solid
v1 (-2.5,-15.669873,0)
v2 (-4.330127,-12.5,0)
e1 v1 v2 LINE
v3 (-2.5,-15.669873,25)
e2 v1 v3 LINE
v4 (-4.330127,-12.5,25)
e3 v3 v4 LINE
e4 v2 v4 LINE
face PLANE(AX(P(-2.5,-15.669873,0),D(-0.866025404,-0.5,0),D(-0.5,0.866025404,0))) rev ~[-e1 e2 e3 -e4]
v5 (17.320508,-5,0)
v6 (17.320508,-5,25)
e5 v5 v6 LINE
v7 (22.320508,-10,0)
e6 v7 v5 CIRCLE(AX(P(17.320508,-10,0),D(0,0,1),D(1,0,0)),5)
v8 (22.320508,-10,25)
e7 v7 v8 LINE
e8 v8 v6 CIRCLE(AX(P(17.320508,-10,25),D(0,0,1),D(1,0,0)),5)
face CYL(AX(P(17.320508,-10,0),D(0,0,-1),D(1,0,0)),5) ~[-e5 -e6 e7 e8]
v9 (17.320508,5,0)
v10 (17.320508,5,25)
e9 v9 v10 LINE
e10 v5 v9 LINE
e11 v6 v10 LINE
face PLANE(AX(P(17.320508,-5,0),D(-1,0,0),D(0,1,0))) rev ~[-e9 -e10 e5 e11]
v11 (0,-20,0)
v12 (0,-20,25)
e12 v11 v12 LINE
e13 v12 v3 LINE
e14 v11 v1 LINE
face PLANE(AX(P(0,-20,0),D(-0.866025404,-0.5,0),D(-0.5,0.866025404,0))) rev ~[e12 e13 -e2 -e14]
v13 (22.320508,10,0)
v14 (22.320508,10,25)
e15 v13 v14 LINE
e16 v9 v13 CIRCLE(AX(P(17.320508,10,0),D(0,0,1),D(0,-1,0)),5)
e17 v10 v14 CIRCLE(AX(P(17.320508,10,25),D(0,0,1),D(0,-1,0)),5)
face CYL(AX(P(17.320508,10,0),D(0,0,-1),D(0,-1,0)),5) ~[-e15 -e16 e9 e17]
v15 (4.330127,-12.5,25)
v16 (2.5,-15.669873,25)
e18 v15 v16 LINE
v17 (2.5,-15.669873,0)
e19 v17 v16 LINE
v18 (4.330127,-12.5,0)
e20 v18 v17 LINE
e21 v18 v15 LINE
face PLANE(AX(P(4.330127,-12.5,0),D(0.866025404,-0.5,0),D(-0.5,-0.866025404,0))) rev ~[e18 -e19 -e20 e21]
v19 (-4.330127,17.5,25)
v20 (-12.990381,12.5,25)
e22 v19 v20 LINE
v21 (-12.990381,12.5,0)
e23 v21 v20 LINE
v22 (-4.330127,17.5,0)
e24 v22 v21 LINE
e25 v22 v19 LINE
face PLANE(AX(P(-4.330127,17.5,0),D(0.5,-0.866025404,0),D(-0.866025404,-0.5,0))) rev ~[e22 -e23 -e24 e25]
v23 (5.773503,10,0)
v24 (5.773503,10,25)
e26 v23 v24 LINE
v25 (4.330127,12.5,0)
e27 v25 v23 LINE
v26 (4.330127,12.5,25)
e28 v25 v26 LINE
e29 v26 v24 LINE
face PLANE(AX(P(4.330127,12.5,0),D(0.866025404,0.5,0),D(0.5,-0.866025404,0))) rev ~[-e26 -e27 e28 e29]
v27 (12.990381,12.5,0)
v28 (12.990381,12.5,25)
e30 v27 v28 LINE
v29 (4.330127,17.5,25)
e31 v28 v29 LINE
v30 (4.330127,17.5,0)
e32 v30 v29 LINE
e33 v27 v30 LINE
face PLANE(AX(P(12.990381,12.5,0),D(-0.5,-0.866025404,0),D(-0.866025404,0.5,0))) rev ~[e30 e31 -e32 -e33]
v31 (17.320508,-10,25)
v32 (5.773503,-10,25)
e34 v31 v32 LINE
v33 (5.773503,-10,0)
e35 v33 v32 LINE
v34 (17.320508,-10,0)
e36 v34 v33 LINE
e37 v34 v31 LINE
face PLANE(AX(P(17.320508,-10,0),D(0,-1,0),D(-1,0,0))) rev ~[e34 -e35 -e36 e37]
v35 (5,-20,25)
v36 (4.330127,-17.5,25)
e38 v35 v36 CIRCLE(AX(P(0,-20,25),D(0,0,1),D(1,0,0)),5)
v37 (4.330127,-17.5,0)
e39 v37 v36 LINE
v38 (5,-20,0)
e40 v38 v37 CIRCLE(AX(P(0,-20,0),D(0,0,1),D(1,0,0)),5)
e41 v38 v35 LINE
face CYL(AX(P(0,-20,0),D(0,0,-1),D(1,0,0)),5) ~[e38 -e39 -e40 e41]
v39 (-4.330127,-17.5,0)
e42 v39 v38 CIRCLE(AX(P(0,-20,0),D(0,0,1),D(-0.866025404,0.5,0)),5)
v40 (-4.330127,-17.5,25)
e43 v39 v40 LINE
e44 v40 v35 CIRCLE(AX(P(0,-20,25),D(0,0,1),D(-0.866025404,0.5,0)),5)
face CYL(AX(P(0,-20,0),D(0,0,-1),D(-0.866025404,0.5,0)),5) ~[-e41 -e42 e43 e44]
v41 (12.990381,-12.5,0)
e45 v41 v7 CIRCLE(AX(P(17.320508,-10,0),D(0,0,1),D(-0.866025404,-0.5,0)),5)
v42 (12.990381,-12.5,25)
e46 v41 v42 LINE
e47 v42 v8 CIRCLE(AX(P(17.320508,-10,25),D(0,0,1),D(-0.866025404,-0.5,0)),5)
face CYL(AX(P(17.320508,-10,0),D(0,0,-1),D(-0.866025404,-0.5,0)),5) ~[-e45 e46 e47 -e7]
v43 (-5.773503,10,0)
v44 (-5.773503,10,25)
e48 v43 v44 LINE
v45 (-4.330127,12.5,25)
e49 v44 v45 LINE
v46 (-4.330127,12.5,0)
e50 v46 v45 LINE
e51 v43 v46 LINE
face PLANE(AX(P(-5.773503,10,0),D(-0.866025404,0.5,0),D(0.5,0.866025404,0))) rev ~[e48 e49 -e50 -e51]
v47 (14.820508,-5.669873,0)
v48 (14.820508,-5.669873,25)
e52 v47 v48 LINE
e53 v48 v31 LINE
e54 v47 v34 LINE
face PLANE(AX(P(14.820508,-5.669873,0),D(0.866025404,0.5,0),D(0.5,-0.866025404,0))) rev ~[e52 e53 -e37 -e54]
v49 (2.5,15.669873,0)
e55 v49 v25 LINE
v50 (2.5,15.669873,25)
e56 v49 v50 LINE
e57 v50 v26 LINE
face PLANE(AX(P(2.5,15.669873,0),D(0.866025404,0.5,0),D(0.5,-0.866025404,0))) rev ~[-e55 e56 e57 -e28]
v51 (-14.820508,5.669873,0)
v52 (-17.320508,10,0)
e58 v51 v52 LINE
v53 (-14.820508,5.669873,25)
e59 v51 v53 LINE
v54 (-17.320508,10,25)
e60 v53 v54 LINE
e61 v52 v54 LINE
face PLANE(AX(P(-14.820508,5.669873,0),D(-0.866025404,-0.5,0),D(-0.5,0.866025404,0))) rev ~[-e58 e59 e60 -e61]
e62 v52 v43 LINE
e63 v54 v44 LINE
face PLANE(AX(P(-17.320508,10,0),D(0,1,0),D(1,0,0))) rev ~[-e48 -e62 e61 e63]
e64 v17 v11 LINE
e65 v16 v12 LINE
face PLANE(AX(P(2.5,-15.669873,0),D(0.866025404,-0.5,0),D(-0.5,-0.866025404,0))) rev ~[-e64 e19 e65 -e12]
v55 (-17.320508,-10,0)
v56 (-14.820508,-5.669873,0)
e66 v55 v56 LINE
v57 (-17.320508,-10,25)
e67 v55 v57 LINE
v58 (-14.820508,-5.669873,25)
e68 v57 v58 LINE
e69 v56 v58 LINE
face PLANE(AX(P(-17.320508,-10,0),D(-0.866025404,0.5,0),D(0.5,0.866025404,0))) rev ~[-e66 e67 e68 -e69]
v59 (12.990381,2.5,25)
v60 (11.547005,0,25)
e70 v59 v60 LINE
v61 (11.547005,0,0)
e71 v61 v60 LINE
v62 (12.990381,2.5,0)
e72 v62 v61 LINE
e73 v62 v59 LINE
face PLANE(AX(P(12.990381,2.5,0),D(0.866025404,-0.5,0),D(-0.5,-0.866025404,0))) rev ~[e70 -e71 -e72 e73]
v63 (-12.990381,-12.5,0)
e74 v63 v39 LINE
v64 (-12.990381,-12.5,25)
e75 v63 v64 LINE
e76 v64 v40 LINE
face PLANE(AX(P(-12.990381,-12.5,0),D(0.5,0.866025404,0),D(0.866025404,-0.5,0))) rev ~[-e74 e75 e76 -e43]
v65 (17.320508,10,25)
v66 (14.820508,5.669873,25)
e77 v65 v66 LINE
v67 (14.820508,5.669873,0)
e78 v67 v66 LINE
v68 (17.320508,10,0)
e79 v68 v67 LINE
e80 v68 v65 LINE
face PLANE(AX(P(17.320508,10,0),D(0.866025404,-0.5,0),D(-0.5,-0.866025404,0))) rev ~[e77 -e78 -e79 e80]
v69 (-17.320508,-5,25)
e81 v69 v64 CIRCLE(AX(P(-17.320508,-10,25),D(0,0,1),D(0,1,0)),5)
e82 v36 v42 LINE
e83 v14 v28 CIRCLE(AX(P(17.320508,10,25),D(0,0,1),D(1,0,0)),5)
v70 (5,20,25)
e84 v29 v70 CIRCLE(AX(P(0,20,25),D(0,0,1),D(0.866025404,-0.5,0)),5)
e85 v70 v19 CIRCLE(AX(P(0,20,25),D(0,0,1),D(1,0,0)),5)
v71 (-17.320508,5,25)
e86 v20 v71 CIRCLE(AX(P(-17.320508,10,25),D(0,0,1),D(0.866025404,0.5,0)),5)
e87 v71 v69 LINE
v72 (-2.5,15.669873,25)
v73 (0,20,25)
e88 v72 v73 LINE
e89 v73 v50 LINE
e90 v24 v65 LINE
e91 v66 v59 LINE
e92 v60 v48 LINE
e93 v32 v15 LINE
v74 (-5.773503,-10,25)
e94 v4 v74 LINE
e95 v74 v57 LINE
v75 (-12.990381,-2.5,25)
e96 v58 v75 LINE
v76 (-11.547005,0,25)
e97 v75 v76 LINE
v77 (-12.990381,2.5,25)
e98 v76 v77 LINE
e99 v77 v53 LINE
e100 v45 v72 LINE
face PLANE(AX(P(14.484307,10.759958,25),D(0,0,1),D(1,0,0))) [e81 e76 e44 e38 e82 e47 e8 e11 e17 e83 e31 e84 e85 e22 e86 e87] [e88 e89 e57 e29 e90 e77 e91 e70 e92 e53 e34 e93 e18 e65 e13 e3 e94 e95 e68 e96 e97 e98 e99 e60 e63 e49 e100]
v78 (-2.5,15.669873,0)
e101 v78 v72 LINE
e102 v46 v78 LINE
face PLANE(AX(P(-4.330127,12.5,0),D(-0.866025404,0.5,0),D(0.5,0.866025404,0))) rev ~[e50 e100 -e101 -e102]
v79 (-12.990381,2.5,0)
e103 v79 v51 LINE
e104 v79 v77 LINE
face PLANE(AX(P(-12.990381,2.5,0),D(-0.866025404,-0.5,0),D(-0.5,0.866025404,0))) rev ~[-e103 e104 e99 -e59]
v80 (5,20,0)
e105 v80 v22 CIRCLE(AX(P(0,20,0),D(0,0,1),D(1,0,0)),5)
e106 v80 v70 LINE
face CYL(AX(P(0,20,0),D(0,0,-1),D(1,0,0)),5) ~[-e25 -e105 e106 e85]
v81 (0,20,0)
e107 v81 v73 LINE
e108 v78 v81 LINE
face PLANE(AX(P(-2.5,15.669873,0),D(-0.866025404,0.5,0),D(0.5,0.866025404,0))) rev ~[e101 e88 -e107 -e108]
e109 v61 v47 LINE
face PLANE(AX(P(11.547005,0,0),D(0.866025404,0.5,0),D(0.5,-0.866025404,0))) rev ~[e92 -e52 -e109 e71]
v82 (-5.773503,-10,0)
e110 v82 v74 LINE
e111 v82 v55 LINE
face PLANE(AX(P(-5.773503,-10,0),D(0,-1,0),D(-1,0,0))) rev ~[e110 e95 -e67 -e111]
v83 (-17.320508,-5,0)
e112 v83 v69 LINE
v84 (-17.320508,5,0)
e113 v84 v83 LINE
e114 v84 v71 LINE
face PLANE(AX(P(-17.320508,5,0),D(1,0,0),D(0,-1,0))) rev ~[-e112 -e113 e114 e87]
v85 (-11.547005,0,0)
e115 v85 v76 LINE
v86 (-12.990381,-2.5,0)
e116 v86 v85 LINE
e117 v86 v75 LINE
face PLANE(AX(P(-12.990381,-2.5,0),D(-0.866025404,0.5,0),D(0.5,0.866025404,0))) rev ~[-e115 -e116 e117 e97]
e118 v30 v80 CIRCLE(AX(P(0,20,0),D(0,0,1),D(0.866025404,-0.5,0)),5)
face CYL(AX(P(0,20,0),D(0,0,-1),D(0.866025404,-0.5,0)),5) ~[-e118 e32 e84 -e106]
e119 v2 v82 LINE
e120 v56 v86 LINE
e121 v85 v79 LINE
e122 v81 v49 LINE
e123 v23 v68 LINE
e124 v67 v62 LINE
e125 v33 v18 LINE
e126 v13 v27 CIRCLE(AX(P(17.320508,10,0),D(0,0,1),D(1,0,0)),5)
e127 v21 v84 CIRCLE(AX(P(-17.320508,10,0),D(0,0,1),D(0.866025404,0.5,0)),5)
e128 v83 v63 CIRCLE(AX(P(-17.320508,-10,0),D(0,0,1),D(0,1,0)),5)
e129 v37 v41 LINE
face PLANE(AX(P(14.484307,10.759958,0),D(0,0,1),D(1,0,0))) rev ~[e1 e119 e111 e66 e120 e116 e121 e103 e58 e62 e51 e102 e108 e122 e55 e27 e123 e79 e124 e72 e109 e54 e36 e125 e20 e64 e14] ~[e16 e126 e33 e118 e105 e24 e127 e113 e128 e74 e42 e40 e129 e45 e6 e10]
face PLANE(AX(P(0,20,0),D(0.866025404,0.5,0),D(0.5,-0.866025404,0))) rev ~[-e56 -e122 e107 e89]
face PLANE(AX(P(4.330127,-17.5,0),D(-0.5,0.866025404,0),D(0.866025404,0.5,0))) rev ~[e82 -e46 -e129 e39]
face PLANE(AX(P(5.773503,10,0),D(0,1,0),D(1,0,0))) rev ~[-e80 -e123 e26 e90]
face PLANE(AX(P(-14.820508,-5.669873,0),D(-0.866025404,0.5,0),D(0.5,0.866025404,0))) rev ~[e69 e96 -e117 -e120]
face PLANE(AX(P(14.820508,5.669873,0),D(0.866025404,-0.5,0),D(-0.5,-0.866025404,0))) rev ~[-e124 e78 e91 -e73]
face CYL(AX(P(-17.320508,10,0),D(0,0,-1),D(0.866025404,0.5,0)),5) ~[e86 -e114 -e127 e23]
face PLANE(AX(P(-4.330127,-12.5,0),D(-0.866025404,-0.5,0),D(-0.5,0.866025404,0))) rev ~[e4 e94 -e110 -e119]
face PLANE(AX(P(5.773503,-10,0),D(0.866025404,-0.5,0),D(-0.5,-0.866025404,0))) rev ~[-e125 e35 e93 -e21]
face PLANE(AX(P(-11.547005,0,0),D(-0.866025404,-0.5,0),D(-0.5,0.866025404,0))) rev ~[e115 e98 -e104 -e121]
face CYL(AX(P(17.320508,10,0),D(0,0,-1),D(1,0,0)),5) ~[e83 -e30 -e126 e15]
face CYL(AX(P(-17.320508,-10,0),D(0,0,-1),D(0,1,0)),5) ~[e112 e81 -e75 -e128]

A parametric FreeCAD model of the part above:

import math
import FreeCAD as App
import Part
import Sketcher

V = App.Vector

doc = App.newDocument("Part")
body = doc.addObject("PartDesign::Body", "Body")

# Sketch on XY plane
sketch1 = body.newObject("Sketcher::SketchObject", "Sketch")
sketch1.AttachmentSupport = (doc.getObject("XY_Plane"), [""])
sketch1.MapMode = "FlatFace"
sketch1.addGeometry(Part.ArcOfCircle(Part.Circle(V(-17.320508, -10, 0), V(0, 0, 1), 5), math.radians(90), math.radians(330)), False)
sketch1.addGeometry(Part.LineSegment(V(-12.990381, -12.5, 0), V(-4.330127, -17.5, 0)), False)
sketch1.addGeometry(Part.ArcOfCircle(Part.Circle(V(0, -20, 0), V(0, 0, 1), 5), math.radians(150), math.radians(360)), False)
sketch1.addGeometry(Part.ArcOfCircle(Part.Circle(V(0, -20, 0), V(0, 0, 1), 5), math.radians(0), math.radians(30)), False)
sketch1.addGeometry(Part.LineSegment(V(4.330127, -17.5, 0), V(12.990381, -12.5, 0)), False)
sketch1.addGeometry(Part.ArcOfCircle(Part.Circle(V(17.320508, -10, 0), V(0, 0, 1), 5), math.radians(-150), math.radians(0)), False)
sketch1.addGeometry(Part.ArcOfCircle(Part.Circle(V(17.320508, -10, 0), V(0, 0, 1), 5), math.radians(0), math.radians(90)), False)
sketch1.addGeometry(Part.LineSegment(V(17.320508, -5, 0), V(17.320508, 5, 0)), False)
sketch1.addGeometry(Part.ArcOfCircle(Part.Circle(V(17.320508, 10, 0), V(0, 0, 1), 5), math.radians(-90), math.radians(0)), False)
sketch1.addGeometry(Part.ArcOfCircle(Part.Circle(V(17.320508, 10, 0), V(0, 0, 1), 5), math.radians(0), math.radians(150)), False)
sketch1.addGeometry(Part.LineSegment(V(12.990381, 12.5, 0), V(4.330127, 17.5, 0)), False)
sketch1.addGeometry(Part.ArcOfCircle(Part.Circle(V(0, 20, 0), V(0, 0, 1), 5), math.radians(-30), math.radians(0)), False)
sketch1.addGeometry(Part.ArcOfCircle(Part.Circle(V(0, 20, 0), V(0, 0, 1), 5), math.radians(0), math.radians(210)), False)
sketch1.addGeometry(Part.LineSegment(V(-4.330127, 17.5, 0), V(-12.990381, 12.5, 0)), False)
sketch1.addGeometry(Part.ArcOfCircle(Part.Circle(V(-17.320508, 10, 0), V(0, 0, 1), 5), math.radians(30), math.radians(270)), False)
sketch1.addGeometry(Part.LineSegment(V(-17.320508, 5, 0), V(-17.320508, -5, 0)), False)
sketch1.addGeometry(Part.LineSegment(V(17.320508, 10, 0), V(14.820508, 5.669873, 0)), False)
sketch1.addGeometry(Part.LineSegment(V(14.820508, 5.669873, 0), V(12.990381, 2.5, 0)), False)
sketch1.addGeometry(Part.LineSegment(V(12.990381, 2.5, 0), V(11.547005, 0, 0)), False)
sketch1.addGeometry(Part.LineSegment(V(11.547005, 0, 0), V(14.820508, -5.669873, 0)), False)
sketch1.addGeometry(Part.LineSegment(V(14.820508, -5.669873, 0), V(17.320508, -10, 0)), False)
sketch1.addGeometry(Part.LineSegment(V(17.320508, -10, 0), V(5.773503, -10, 0)), False)
sketch1.addGeometry(Part.LineSegment(V(5.773503, -10, 0), V(4.330127, -12.5, 0)), False)
sketch1.addGeometry(Part.LineSegment(V(4.330127, -12.5, 0), V(2.5, -15.669873, 0)), False)
sketch1.addGeometry(Part.LineSegment(V(2.5, -15.669873, 0), V(0, -20, 0)), False)
sketch1.addGeometry(Part.LineSegment(V(0, -20, 0), V(-2.5, -15.669873, 0)), False)
sketch1.addGeometry(Part.LineSegment(V(-2.5, -15.669873, 0), V(-4.330127, -12.5, 0)), False)
sketch1.addGeometry(Part.LineSegment(V(-4.330127, -12.5, 0), V(-5.773503, -10, 0)), False)
sketch1.addGeometry(Part.LineSegment(V(-5.773503, -10, 0), V(-17.320508, -10, 0)), False)
sketch1.addGeometry(Part.LineSegment(V(-17.320508, -10, 0), V(-14.820508, -5.669873, 0)), False)
sketch1.addGeometry(Part.LineSegment(V(-14.820508, -5.669873, 0), V(-12.990381, -2.5, 0)), False)
sketch1.addGeometry(Part.LineSegment(V(-12.990381, -2.5, 0), V(-11.547005, 0, 0)), False)
sketch1.addGeometry(Part.LineSegment(V(-11.547005, 0, 0), V(-12.990381, 2.5, 0)), False)
sketch1.addGeometry(Part.LineSegment(V(-12.990381, 2.5, 0), V(-14.820508, 5.669873, 0)), False)
sketch1.addGeometry(Part.LineSegment(V(-14.820508, 5.669873, 0), V(-17.320508, 10, 0)), False)
sketch1.addGeometry(Part.LineSegment(V(-17.320508, 10, 0), V(-5.773503, 10, 0)), False)
sketch1.addGeometry(Part.LineSegment(V(-5.773503, 10, 0), V(-4.330127, 12.5, 0)), False)
sketch1.addGeometry(Part.LineSegment(V(-4.330127, 12.5, 0), V(-2.5, 15.669873, 0)), False)
sketch1.addGeometry(Part.LineSegment(V(-2.5, 15.669873, 0), V(0, 20, 0)), False)
sketch1.addGeometry(Part.LineSegment(V(0, 20, 0), V(2.5, 15.669873, 0)), False)
sketch1.addGeometry(Part.LineSegment(V(2.5, 15.669873, 0), V(4.330127, 12.5, 0)), False)
sketch1.addGeometry(Part.LineSegment(V(4.330127, 12.5, 0), V(5.773503, 10, 0)), False)
sketch1.addGeometry(Part.LineSegment(V(5.773503, 10, 0), V(17.320508, 10, 0)), False)
sketch1.addConstraint(Sketcher.Constraint("Coincident", 0, 2, 1, 1))
sketch1.addConstraint(Sketcher.Constraint("Coincident", 1, 2, 2, 1))
sketch1.addConstraint(Sketcher.Constraint("Tangent", 2, 2, 3, 1))
sketch1.addConstraint(Sketcher.Constraint("Coincident", 3, 2, 4, 1))
sketch1.addConstraint(Sketcher.Constraint("Coincident", 4, 2, 5, 1))
sketch1.addConstraint(Sketcher.Constraint("Tangent", 5, 2, 6, 1))
sketch1.addConstraint(Sketcher.Constraint("Coincident", 6, 2, 7, 1))
sketch1.addConstraint(Sketcher.Constraint("Coincident", 7, 2, 8, 1))
sketch1.addConstraint(Sketcher.Constraint("Tangent", 8, 2, 9, 1))
sketch1.addConstraint(Sketcher.Constraint("Coincident", 9, 2, 10, 1))
sketch1.addConstraint(Sketcher.Constraint("Coincident", 10, 2, 11, 1))
sketch1.addConstraint(Sketcher.Constraint("Tangent", 11, 2, 12, 1))
sketch1.addConstraint(Sketcher.Constraint("Coincident", 12, 2, 13, 1))
sketch1.addConstraint(Sketcher.Constraint("Coincident", 13, 2, 14, 1))
sketch1.addConstraint(Sketcher.Constraint("Coincident", 14, 2, 15, 1))
sketch1.addConstraint(Sketcher.Constraint("Coincident", 15, 2, 0, 1))
sketch1.addConstraint(Sketcher.Constraint("Coincident", 16, 2, 17, 1))
sketch1.addConstraint(Sketcher.Constraint("Coincident", 17, 2, 18, 1))
sketch1.addConstraint(Sketcher.Constraint("Coincident", 18, 2, 19, 1))
sketch1.addConstraint(Sketcher.Constraint("Coincident", 19, 2, 20, 1))
sketch1.addConstraint(Sketcher.Constraint("Coincident", 20, 2, 21, 1))
sketch1.addConstraint(Sketcher.Constraint("Coincident", 21, 2, 22, 1))
sketch1.addConstraint(Sketcher.Constraint("Coincident", 22, 2, 23, 1))
sketch1.addConstraint(Sketcher.Constraint("Coincident", 23, 2, 24, 1))
sketch1.addConstraint(Sketcher.Constraint("Coincident", 24, 2, 25, 1))
sketch1.addConstraint(Sketcher.Constraint("Coincident", 25, 2, 26, 1))
sketch1.addConstraint(Sketcher.Constraint("Coincident", 26, 2, 27, 1))
sketch1.addConstraint(Sketcher.Constraint("Coincident", 27, 2, 28, 1))
sketch1.addConstraint(Sketcher.Constraint("Coincident", 28, 2, 29, 1))
sketch1.addConstraint(Sketcher.Constraint("Coincident", 29, 2, 30, 1))
sketch1.addConstraint(Sketcher.Constraint("Coincident", 30, 2, 31, 1))
sketch1.addConstraint(Sketcher.Constraint("Coincident", 31, 2, 32, 1))
sketch1.addConstraint(Sketcher.Constraint("Coincident", 32, 2, 33, 1))
sketch1.addConstraint(Sketcher.Constraint("Coincident", 33, 2, 34, 1))
sketch1.addConstraint(Sketcher.Constraint("Coincident", 34, 2, 35, 1))
sketch1.addConstraint(Sketcher.Constraint("Coincident", 35, 2, 36, 1))
sketch1.addConstraint(Sketcher.Constraint("Coincident", 36, 2, 37, 1))
sketch1.addConstraint(Sketcher.Constraint("Coincident", 37, 2, 38, 1))
sketch1.addConstraint(Sketcher.Constraint("Coincident", 38, 2, 39, 1))
sketch1.addConstraint(Sketcher.Constraint("Coincident", 39, 2, 40, 1))
sketch1.addConstraint(Sketcher.Constraint("Coincident", 40, 2, 41, 1))
sketch1.addConstraint(Sketcher.Constraint("Coincident", 41, 2, 42, 1))
sketch1.addConstraint(Sketcher.Constraint("Coincident", 42, 2, 16, 1))
sketch1.addConstraint(Sketcher.Constraint("Vertical", 7))
sketch1.addConstraint(Sketcher.Constraint("Vertical", 15))
sketch1.addConstraint(Sketcher.Constraint("Horizontal", 21))
sketch1.addConstraint(Sketcher.Constraint("Horizontal", 28))
sketch1.addConstraint(Sketcher.Constraint("Horizontal", 35))
sketch1.addConstraint(Sketcher.Constraint("Horizontal", 42))
sketch1.addConstraint(Sketcher.Constraint("Coincident", 20, 2, 5, 3))
sketch1.addConstraint(Sketcher.Constraint("Coincident", 24, 2, 2, 3))
sketch1.addConstraint(Sketcher.Constraint("Coincident", 28, 2, 0, 3))
sketch1.addConstraint(Sketcher.Constraint("Coincident", 34, 2, 14, 3))
sketch1.addConstraint(Sketcher.Constraint("Coincident", 38, 2, 11, 3))
sketch1.addConstraint(Sketcher.Constraint("Coincident", 42, 2, 8, 3))
sketch1.addConstraint(Sketcher.Constraint("Equal", 0, 2))
sketch1.addConstraint(Sketcher.Constraint("Equal", 2, 3))
sketch1.addConstraint(Sketcher.Constraint("Equal", 3, 5))
sketch1.addConstraint(Sketcher.Constraint("Equal", 5, 6))
sketch1.addConstraint(Sketcher.Constraint("Equal", 6, 8))
sketch1.addConstraint(Sketcher.Constraint("Equal", 8, 9))
sketch1.addConstraint(Sketcher.Constraint("Equal", 9, 11))
sketch1.addConstraint(Sketcher.Constraint("Equal", 11, 12))
sketch1.addConstraint(Sketcher.Constraint("Equal", 12, 14))
sketch1.addConstraint(Sketcher.Constraint("Symmetric", 0, 3, 8, 3, -1, 1))
sketch1.addConstraint(Sketcher.Constraint("Symmetric", 2, 3, 11, 3, -1, 1))
sketch1.addConstraint(Sketcher.Constraint("Symmetric", 5, 3, 14, 3, -1, 1))
sketch1.addConstraint(Sketcher.Constraint("Symmetric", 16, 2, 29, 2, -1, 1))
sketch1.addConstraint(Sketcher.Constraint("Symmetric", 17, 2, 30, 2, -1, 1))
sketch1.addConstraint(Sketcher.Constraint("Symmetric", 18, 2, 31, 2, -1, 1))
sketch1.addConstraint(Sketcher.Constraint("Symmetric", 19, 2, 33, 2, -1, 1))
sketch1.addConstraint(Sketcher.Constraint("Symmetric", 22, 2, 36, 2, -1, 1))
sketch1.addConstraint(Sketcher.Constraint("Symmetric", 23, 2, 37, 2, -1, 1))
sketch1.addConstraint(Sketcher.Constraint("Symmetric", 25, 2, 39, 2, -1, 1))
sketch1.addConstraint(Sketcher.Constraint("Symmetric", 26, 2, 40, 2, -1, 1))
sketch1.addConstraint(Sketcher.Constraint("Symmetric", 0, 3, 5, 3, -2))
sketch1.addConstraint(Sketcher.Constraint("Symmetric", 1, 2, 3, 2, -2))
sketch1.addConstraint(Sketcher.Constraint("Symmetric", 23, 2, 25, 2, -2))
sketch1.addConstraint(Sketcher.Constraint("Symmetric", 22, 2, 26, 2, -2))
sketch1.addConstraint(Sketcher.Constraint("Symmetric", 19, 2, 29, 2, -2))
sketch1.addConstraint(Sketcher.Constraint("Symmetric", 17, 2, 32, 2, -2))
sketch1.addConstraint(Sketcher.Constraint("PointOnObject", 18, 2, -1))
sketch1.addConstraint(Sketcher.Constraint("Parallel", 1, 10))
sketch1.addConstraint(Sketcher.Constraint("Parallel", 4, 13))
sketch1.addConstraint(Sketcher.Constraint("Perpendicular", 10, 16))
sketch1.addConstraint(Sketcher.Constraint("Parallel", 16, 17))
sketch1.addConstraint(Sketcher.Constraint("Parallel", 17, 18))
sketch1.addConstraint(Sketcher.Constraint("Perpendicular", 13, 19))
sketch1.addConstraint(Sketcher.Constraint("Parallel", 18, 22))
sketch1.addConstraint(Sketcher.Constraint("Parallel", 22, 23))
sketch1.addConstraint(Sketcher.Constraint("Parallel", 23, 24))
sketch1.addConstraint(Sketcher.Constraint("Parallel", 26, 27))
sketch1.addConstraint(Sketcher.Constraint("Parallel", 31, 36))
sketch1.addConstraint(Sketcher.Constraint("Parallel", 40, 41))
sketch1.addConstraint(Sketcher.Constraint("Horizontal", 3, 3, 2, 2))
sketch1.addConstraint(Sketcher.Constraint("Horizontal", 6, 3, 5, 2))
sketch1.addConstraint(Sketcher.Constraint("Horizontal", 14, 3, 8, 2))
sketch1.addConstraint(Sketcher.Constraint("Horizontal", 12, 3, 11, 2))
sketch1.addConstraint(Sketcher.Constraint("Horizontal", 10, 2, 12, 2))
sketch1.addConstraint(Sketcher.Constraint("Horizontal", 4, 2, 22, 2))
sketch1.addConstraint(Sketcher.Constraint("Horizontal", 13, 2, 36, 2))
sketch1.addConstraint(Sketcher.Constraint("Vertical", 9, 3, 6, 2))
sketch1.addConstraint(Sketcher.Constraint("Vertical", 0, 3, 14, 2))
sketch1.addConstraint(Sketcher.Constraint("Vertical", 9, 2, 17, 2))
sketch1.addConstraint(Sketcher.Constraint("Vertical", 10, 2, 22, 2))
sketch1.addConstraint(Sketcher.Constraint("Equal", 18, 22))
sketch1.addConstraint(Sketcher.Constraint("Equal", 17, 23))
sketch1.addConstraint(Sketcher.Constraint("Equal", 20, 24))
sketch1.addConstraint(Sketcher.Constraint("Radius", 0, 5.0))
sketch1.addConstraint(Sketcher.Constraint("DistanceY", 7, 1, 7, 2, 10.0))
sketch1.addConstraint(Sketcher.Constraint("Distance", 1, 10.0))
sketch1.addConstraint(Sketcher.Constraint("Distance", 16, 5.0))
pad1 = body.newObject("PartDesign::Pad", "Pad")
pad1.Profile = sketch1
pad1.Length = 25

doc.recompute()
